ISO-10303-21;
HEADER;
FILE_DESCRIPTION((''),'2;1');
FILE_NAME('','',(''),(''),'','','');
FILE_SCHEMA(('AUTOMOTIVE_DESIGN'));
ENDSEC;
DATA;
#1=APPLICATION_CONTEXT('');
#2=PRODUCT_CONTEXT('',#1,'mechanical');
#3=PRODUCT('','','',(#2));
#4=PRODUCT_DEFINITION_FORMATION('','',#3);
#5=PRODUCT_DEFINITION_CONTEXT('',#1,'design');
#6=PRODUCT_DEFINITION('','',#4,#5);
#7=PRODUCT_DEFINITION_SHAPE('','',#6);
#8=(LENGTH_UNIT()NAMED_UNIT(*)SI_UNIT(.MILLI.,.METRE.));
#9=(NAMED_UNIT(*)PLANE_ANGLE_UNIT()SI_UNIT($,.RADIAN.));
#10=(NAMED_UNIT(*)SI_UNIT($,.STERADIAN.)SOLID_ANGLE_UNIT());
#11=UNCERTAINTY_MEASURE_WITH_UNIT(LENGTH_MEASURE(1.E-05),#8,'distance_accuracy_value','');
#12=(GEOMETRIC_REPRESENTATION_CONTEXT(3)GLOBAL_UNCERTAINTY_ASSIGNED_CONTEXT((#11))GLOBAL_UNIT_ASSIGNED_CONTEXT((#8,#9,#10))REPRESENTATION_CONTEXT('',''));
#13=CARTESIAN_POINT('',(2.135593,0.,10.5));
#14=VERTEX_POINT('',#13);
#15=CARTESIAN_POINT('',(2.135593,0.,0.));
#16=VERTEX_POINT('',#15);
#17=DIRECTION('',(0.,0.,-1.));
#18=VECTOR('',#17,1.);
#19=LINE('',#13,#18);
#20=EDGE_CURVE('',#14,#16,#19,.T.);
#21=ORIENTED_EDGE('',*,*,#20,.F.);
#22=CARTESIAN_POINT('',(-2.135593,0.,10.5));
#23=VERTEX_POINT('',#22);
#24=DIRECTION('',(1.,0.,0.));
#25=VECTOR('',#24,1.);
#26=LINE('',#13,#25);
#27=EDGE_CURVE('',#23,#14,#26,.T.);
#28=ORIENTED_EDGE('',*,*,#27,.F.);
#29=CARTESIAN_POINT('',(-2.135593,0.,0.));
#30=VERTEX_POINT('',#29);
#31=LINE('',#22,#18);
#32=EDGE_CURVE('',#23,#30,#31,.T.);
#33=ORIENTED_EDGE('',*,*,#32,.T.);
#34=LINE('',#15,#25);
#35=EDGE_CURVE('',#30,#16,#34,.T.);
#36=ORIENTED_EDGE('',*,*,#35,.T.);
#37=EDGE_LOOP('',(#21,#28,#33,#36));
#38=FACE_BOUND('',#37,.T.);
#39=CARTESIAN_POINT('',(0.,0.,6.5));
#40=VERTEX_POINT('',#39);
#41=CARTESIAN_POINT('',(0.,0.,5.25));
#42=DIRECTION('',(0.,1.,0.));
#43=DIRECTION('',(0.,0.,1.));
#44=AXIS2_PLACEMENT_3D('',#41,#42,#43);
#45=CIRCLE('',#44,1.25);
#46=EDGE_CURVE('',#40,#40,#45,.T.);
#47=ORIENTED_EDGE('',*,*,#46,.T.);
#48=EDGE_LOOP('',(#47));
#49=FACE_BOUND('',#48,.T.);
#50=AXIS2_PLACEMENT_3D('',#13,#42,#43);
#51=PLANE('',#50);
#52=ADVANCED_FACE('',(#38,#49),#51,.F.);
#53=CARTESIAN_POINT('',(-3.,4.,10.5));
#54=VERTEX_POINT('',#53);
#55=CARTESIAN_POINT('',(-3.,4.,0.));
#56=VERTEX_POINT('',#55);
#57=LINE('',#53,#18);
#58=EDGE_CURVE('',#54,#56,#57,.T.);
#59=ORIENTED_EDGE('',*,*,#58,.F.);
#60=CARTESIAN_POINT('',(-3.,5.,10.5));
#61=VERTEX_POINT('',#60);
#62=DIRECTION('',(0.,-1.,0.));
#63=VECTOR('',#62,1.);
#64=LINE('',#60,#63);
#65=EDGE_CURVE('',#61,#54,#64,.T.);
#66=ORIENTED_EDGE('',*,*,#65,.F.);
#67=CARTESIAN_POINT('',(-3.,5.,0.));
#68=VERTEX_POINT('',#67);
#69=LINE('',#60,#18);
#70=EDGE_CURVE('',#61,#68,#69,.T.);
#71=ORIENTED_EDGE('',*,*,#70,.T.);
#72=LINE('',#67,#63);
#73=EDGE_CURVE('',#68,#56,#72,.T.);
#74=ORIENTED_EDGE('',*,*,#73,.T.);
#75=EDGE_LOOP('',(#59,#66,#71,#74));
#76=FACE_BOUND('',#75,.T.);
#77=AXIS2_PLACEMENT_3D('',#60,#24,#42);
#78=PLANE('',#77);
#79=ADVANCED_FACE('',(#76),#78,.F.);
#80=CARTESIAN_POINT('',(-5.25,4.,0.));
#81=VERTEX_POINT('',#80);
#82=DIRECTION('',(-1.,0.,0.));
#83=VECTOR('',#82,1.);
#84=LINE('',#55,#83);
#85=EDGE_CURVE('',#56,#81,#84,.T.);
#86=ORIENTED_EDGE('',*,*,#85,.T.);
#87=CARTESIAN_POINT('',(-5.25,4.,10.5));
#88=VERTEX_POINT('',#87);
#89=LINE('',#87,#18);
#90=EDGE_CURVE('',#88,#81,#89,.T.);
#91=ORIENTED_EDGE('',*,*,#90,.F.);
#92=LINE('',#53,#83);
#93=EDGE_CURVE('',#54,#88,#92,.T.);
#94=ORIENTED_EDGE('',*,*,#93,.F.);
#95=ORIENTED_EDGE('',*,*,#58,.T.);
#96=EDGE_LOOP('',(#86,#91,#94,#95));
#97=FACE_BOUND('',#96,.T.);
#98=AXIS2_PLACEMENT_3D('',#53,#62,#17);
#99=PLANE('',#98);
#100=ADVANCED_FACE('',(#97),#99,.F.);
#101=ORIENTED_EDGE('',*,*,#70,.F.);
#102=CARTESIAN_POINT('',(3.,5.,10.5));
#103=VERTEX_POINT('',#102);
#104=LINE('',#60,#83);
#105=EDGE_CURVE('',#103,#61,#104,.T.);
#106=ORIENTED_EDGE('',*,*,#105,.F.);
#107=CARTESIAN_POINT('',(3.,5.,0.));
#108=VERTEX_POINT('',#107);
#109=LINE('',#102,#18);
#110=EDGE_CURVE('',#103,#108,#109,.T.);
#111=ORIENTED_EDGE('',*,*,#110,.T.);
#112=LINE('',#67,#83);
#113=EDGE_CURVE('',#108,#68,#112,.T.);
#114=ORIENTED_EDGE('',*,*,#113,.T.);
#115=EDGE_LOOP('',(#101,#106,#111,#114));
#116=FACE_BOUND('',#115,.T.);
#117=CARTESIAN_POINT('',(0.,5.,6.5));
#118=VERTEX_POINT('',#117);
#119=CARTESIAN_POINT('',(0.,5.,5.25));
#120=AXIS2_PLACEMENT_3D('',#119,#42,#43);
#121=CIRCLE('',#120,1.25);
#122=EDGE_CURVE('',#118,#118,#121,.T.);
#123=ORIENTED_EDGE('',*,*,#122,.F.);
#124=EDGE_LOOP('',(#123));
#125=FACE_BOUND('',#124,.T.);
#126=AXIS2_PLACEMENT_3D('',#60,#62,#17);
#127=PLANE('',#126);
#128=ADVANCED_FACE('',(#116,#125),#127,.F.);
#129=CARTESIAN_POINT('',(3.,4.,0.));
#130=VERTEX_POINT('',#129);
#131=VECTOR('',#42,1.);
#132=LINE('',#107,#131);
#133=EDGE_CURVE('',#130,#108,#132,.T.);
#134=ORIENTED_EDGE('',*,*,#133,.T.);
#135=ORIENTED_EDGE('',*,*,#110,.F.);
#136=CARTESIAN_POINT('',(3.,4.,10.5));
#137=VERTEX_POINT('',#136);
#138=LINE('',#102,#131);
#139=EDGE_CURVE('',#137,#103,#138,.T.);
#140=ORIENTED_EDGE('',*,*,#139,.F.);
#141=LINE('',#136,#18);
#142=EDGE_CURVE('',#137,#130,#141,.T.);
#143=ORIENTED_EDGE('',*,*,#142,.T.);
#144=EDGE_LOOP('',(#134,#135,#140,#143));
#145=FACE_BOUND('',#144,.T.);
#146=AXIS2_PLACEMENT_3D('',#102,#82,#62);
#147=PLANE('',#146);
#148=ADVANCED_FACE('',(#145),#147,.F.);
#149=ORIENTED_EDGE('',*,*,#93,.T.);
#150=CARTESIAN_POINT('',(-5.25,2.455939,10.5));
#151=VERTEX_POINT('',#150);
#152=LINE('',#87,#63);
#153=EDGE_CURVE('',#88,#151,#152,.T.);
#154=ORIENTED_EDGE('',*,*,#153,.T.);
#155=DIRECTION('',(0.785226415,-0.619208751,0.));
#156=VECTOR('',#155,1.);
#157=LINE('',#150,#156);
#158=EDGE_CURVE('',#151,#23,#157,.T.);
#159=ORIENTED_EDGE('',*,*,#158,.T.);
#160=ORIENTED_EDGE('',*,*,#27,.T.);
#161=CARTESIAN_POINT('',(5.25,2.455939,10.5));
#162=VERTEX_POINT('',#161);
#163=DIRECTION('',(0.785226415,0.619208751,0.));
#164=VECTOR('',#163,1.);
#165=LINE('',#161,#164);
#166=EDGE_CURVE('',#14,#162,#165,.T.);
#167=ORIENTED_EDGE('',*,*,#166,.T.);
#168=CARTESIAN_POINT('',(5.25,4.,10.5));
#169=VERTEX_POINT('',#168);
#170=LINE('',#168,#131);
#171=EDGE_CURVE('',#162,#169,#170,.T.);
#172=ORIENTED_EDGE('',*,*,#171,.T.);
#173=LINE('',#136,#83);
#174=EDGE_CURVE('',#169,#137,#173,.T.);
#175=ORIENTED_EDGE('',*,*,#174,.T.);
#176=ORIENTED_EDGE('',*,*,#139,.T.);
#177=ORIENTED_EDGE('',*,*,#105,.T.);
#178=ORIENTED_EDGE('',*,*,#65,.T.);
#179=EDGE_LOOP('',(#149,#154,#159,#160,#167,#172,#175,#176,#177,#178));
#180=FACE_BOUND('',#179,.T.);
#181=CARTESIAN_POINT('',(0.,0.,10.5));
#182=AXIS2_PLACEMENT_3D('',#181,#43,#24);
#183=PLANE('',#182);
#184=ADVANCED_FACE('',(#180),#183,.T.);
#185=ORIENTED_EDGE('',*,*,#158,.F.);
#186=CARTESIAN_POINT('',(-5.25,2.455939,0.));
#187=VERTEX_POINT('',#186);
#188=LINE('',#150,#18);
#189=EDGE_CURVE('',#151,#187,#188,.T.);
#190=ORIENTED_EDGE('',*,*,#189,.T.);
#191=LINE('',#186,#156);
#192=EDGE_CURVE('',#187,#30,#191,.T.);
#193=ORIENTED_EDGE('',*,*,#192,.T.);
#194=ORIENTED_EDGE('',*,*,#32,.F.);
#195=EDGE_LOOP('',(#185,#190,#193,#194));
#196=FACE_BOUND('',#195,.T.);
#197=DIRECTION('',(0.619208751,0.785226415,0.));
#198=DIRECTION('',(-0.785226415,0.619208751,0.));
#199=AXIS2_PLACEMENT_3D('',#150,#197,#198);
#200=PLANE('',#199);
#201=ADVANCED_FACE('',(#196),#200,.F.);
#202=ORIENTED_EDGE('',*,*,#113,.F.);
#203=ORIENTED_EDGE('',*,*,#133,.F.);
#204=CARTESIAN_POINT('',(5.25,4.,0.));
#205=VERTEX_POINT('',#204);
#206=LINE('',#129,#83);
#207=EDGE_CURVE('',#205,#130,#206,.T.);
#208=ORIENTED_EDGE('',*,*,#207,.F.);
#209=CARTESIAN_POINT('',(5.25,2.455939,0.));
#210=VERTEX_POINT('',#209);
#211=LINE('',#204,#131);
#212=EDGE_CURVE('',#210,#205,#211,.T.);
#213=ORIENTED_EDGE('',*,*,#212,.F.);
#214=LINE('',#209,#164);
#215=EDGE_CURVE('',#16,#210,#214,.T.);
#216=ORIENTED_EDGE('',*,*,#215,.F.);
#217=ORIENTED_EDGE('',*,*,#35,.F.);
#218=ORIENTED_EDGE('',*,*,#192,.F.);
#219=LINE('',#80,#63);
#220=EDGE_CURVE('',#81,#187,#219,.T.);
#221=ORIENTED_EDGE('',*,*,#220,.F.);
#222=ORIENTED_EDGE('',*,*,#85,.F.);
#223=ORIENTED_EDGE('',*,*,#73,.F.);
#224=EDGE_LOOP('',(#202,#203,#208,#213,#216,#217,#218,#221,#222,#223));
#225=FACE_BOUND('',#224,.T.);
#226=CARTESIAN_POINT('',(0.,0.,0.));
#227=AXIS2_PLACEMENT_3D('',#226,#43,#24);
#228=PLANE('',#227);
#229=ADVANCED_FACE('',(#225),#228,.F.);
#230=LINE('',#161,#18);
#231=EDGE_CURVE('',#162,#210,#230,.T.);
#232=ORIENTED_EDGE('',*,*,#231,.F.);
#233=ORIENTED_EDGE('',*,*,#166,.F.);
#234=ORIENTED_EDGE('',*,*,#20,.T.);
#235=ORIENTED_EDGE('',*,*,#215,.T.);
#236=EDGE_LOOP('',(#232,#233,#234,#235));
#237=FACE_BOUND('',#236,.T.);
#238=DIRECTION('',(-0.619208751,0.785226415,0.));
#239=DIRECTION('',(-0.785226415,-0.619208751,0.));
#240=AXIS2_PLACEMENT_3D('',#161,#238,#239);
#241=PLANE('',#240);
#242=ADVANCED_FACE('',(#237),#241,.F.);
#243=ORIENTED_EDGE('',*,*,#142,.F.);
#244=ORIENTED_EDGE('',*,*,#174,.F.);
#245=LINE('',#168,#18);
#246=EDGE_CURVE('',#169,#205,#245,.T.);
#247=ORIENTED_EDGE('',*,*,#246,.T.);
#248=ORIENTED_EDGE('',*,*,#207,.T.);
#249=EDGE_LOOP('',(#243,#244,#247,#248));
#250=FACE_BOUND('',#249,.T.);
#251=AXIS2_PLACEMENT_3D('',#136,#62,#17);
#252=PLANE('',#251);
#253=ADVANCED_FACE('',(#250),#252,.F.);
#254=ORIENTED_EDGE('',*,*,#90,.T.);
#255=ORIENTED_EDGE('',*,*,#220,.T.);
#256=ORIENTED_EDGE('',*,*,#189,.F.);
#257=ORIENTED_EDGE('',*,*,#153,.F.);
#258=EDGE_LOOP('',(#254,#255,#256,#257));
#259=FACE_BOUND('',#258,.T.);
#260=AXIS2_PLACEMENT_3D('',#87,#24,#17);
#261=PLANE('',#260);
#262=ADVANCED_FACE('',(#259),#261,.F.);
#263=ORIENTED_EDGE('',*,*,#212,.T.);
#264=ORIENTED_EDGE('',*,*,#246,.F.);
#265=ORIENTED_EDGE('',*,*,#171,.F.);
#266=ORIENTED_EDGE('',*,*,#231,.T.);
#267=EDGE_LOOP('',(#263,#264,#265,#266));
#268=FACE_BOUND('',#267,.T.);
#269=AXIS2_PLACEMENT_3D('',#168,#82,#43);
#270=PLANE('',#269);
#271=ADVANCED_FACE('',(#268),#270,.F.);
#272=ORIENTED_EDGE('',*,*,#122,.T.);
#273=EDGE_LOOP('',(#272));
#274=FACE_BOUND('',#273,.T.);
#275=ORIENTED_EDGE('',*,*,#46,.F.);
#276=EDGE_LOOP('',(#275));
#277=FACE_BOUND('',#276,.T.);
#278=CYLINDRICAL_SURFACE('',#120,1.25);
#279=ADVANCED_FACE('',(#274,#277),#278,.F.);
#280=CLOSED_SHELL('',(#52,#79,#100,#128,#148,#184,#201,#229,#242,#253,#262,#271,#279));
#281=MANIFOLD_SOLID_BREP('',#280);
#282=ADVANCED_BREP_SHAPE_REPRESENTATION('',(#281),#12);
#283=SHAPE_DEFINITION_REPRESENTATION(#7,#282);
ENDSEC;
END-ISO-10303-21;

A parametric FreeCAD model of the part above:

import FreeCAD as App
import Part
import Sketcher

doc = App.newDocument("Part")
body = doc.addObject("PartDesign::Body", "Body")

sketch1 = doc.addObject("Sketcher::SketchObject", "Sketch")
body.addObject(sketch1)
sketch1.AttachmentSupport = (doc.XY_Plane, [""])
sketch1.MapMode = "FlatFace"
sketch1.addGeometry(Part.LineSegment(App.Vector(3, 5, 0), App.Vector(-3, 5, 0)), False)
sketch1.addGeometry(Part.LineSegment(App.Vector(-3, 5, 0), App.Vector(-3, 4, 0)), False)
sketch1.addGeometry(Part.LineSegment(App.Vector(-3, 4, 0), App.Vector(-5.2, 4, 0)), False)
sketch1.addGeometry(Part.LineSegment(App.Vector(-5.2, 4, 0), App.Vector(-5.2, 2.5, 0)), False)
sketch1.addGeometry(Part.LineSegment(App.Vector(-5.2, 2.5, 0), App.Vector(-2.1, 0, 0)), False)
sketch1.addGeometry(Part.LineSegment(App.Vector(-2.1, 0, 0), App.Vector(2.1, 0, 0)), False)
sketch1.addGeometry(Part.LineSegment(App.Vector(2.1, 0, 0), App.Vector(5.2, 2.5, 0)), False)
sketch1.addGeometry(Part.LineSegment(App.Vector(5.2, 2.5, 0), App.Vector(5.2, 4, 0)), False)
sketch1.addGeometry(Part.LineSegment(App.Vector(5.2, 4, 0), App.Vector(3, 4, 0)), False)
sketch1.addGeometry(Part.LineSegment(App.Vector(3, 4, 0), App.Vector(3, 5, 0)), False)
sketch1.addConstraint(Sketcher.Constraint("Coincident", 0, 2, 1, 1))
sketch1.addConstraint(Sketcher.Constraint("Coincident", 1, 2, 2, 1))
sketch1.addConstraint(Sketcher.Constraint("Coincident", 2, 2, 3, 1))
sketch1.addConstraint(Sketcher.Constraint("Coincident", 3, 2, 4, 1))
sketch1.addConstraint(Sketcher.Constraint("Coincident", 4, 2, 5, 1))
sketch1.addConstraint(Sketcher.Constraint("Coincident", 5, 2, 6, 1))
sketch1.addConstraint(Sketcher.Constraint("Coincident", 6, 2, 7, 1))
sketch1.addConstraint(Sketcher.Constraint("Coincident", 7, 2, 8, 1))
sketch1.addConstraint(Sketcher.Constraint("Coincident", 8, 2, 9, 1))
sketch1.addConstraint(Sketcher.Constraint("Coincident", 9, 2, 0, 1))
sketch1.addConstraint(Sketcher.Constraint("Horizontal", 0))
sketch1.addConstraint(Sketcher.Constraint("Vertical", 1))
sketch1.addConstraint(Sketcher.Constraint("Horizontal", 2))
sketch1.addConstraint(Sketcher.Constraint("Vertical", 3))
sketch1.addConstraint(Sketcher.Constraint("Horizontal", 5))
sketch1.addConstraint(Sketcher.Constraint("Vertical", 7))
sketch1.addConstraint(Sketcher.Constraint("Horizontal", 8))
sketch1.addConstraint(Sketcher.Constraint("Vertical", 9))
sketch1.addConstraint(Sketcher.Constraint("Symmetric", 4, 2, 5, 2, -1, 1))
sketch1.addConstraint(Sketcher.Constraint("Symmetric", 3, 2, 6, 2, -2))
sketch1.addConstraint(Sketcher.Constraint("Symmetric", 1, 2, 8, 2, -2))
sketch1.addConstraint(Sketcher.Constraint("DistanceX", 0, 2, 0, 1, 6.0))
sketch1.addConstraint(Sketcher.Constraint("DistanceY", 1, 2, 1, 1, 1.0))
sketch1.addConstraint(Sketcher.Constraint("DistanceY", -1, 1, 0, 2, 5.0))
sketch1.addConstraint(Sketcher.Constraint("DistanceX", 2, 2, 2, 1, 2.25))
sketch1.addConstraint(Sketcher.Constraint("DistanceY", 3, 2, 3, 1, 1.544061))
sketch1.addConstraint(Sketcher.Constraint("DistanceX", 5, 1, 5, 2, 4.271186))
pad1 = doc.addObject("PartDesign::Pad", "Pad")
body.addObject(pad1)
pad1.Profile = sketch1
pad1.Length = 10.5

sketch2 = doc.addObject("Sketcher::SketchObject", "Sketch001")
body.addObject(sketch2)
sketch2.AttachmentSupport = (doc.XZ_Plane, [""])
sketch2.MapMode = "FlatFace"
sketch2.AttachmentOffset = App.Placement(App.Vector(0, 0, -5), App.Rotation())
sketch2.addGeometry(Part.Circle(App.Vector(0, 5.2, 0), App.Vector(0, 0, 1), 1.2), False)
sketch2.addConstraint(Sketcher.Constraint("PointOnObject", 0, 3, -2))
sketch2.addConstraint(Sketcher.Constraint("Diameter", 0, 2.5))
sketch2.addConstraint(Sketcher.Constraint("DistanceY", -1, 1, 0, 3, 5.25))
doc.recompute()
hole = doc.addObject("PartDesign::Hole", "Hole")
body.addObject(hole)
hole.Profile = sketch2
hole.ThreadType = "None"
hole.Diameter = 2.5
hole.DepthType = "ThroughAll"
hole.Reversed = True

doc.recompute()
